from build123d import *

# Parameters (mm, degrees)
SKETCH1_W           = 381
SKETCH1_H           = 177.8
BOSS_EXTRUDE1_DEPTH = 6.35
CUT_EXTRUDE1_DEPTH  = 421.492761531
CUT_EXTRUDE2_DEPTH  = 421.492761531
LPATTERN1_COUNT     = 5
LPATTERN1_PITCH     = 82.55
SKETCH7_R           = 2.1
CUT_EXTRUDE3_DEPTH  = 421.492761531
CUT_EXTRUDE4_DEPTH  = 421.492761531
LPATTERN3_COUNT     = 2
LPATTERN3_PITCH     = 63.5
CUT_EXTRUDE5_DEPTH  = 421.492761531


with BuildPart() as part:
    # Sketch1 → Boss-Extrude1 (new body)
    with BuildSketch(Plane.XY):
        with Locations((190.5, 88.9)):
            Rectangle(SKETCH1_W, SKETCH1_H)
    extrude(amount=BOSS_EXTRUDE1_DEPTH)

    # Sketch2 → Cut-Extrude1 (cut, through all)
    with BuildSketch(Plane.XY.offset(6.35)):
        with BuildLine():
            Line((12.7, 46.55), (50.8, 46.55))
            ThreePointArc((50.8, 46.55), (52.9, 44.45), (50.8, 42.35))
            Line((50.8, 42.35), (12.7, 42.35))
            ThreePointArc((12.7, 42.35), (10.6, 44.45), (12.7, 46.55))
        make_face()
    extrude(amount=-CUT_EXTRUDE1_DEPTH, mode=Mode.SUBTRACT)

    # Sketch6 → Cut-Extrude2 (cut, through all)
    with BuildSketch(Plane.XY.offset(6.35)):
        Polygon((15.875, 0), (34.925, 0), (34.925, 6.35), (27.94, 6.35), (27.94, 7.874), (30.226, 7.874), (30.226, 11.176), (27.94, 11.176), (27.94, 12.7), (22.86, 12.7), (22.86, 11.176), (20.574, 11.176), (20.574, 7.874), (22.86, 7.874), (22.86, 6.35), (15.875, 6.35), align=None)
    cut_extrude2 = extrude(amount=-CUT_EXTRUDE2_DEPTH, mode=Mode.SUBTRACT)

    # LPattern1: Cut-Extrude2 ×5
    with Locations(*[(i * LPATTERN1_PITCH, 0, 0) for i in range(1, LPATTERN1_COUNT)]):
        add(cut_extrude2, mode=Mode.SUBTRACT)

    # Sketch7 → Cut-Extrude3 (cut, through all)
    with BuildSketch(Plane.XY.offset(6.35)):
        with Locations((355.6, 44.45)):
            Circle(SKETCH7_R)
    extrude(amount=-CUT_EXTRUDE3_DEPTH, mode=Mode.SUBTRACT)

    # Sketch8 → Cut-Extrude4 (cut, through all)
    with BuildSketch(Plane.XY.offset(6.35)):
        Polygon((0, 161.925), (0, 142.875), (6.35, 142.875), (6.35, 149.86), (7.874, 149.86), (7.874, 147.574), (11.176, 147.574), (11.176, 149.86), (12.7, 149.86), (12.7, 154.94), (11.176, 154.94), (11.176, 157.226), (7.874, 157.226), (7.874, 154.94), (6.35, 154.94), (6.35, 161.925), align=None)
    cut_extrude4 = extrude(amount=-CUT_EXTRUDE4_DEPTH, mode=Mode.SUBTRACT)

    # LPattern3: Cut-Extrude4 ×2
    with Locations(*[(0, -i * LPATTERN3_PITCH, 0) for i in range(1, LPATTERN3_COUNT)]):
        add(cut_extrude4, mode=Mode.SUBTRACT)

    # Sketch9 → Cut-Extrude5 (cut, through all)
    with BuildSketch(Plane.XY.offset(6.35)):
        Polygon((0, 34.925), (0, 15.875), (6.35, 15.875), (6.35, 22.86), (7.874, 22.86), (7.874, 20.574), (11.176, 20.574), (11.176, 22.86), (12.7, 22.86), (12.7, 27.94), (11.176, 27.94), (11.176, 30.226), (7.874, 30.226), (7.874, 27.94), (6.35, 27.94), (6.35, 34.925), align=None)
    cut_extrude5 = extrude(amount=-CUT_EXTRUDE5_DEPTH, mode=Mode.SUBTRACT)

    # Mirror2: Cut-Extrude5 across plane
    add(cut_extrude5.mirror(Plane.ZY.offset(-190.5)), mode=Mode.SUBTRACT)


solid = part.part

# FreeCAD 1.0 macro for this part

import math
import FreeCAD as App
import Part
import Sketcher

V = App.Vector
Q = App.Units.Quantity


def add_polygon(sketch, points):
    """Adds a closed chain of lines whose ends are joined by coincident constraints."""
    first, n = sketch.GeometryCount, len(points)
    for a, b in zip(points, points[1:] + points[:1]):
        sketch.addGeometry(Part.LineSegment(App.Vector(*a, 0), App.Vector(*b, 0)), False)
    for i in range(n):
        sketch.addConstraint(Sketcher.Constraint("Coincident", first + i, 2, first + (i + 1) % n, 1))

doc = App.newDocument("Part")
body = doc.addObject("PartDesign::Body", "Body")

# Sketch on XY plane
sketch1 = body.newObject("Sketcher::SketchObject", "Sketch")
sketch1.AttachmentSupport = (doc.getObject("XY_Plane"), [""])
sketch1.MapMode = "FlatFace"
add_polygon(sketch1, [(0, 178), (0, 0), (381, 0), (381, 178)])  # lines 0-3
sketch1.addConstraint([
    Sketcher.Constraint("Vertical", 0),
    Sketcher.Constraint("Horizontal", 1),
    Sketcher.Constraint("Vertical", 2),
    Sketcher.Constraint("Horizontal", 3),
    Sketcher.Constraint("Coincident", 0, 2, -1, 1),
    Sketcher.Constraint("DistanceX", 1, 1, 1, 2, Q("15 in")),
    Sketcher.Constraint("DistanceY", 0, 2, 0, 1, Q("7 in")),
])
pad1 = body.newObject("PartDesign::Pad", "Pad")
pad1.Profile = sketch1
pad1.Length = Q("0.25 in")

# Sketch on XY plane
sketch2 = body.newObject("Sketcher::SketchObject", "Sketch001")
sketch2.AttachmentSupport = (doc.getObject("XY_Plane"), [""])
sketch2.MapMode = "FlatFace"
sketch2.AttachmentOffset = App.Placement(V(0, 0, 0.25 * 25.4), App.Rotation())
sketch2.addGeometry([
    Part.LineSegment(V(50.8, 46.5, 0), V(12.7, 46.5, 0)),
    Part.ArcOfCircle(Part.Circle(V(12.7, 44.5, 0), V(0, 0, 1), 2.1), math.radians(90), math.radians(270)),
    Part.LineSegment(V(12.7, 42.4, 0), V(50.8, 42.4, 0)),
    Part.ArcOfCircle(Part.Circle(V(50.8, 44.5, 0), V(0, 0, 1), 2.1), math.radians(-90), math.radians(90)),
], False)
sketch2.addConstraint([
    Sketcher.Constraint("Tangent", 0, 2, 1, 1),
    Sketcher.Constraint("Tangent", 1, 2, 2, 1),
    Sketcher.Constraint("Tangent", 2, 2, 3, 1),
    Sketcher.Constraint("Tangent", 3, 2, 0, 1),
    Sketcher.Constraint("Horizontal", 0),
    Sketcher.Constraint("Horizontal", 2),
    Sketcher.Constraint("DistanceX", 0, 2, 0, 1, Q("1.5 in")),
    Sketcher.Constraint("DistanceX", -1, 1, 3, 3, Q("2 in")),
    Sketcher.Constraint("DistanceY", -1, 1, 1, 3, Q("1.75 in")),
    Sketcher.Constraint("Radius", 1, 2.1),
])
pocket1 = body.newObject("PartDesign::Pocket", "Pocket")
pocket1.Profile = sketch2
pocket1.Type = "ThroughAll"

# Sketch on XY plane
sketch3 = body.newObject("Sketcher::SketchObject", "Sketch002")
sketch3.AttachmentSupport = (doc.getObject("XY_Plane"), [""])
sketch3.MapMode = "FlatFace"
sketch3.AttachmentOffset = App.Placement(V(0, 0, 0.25 * 25.4), App.Rotation())
add_polygon(sketch3, [(15.9, 0), (34.9, 0), (34.9, 6.3), (27.9, 6.3), (27.9, 7.9), (30.2, 7.9), (30.2, 11.2), (27.9, 11.2), (27.9, 12.7), (22.9, 12.7), (22.9, 11.2), (20.6, 11.2), (20.6, 7.9), (22.9, 7.9), (22.9, 6.3), (15.9, 6.3)])  # lines 0-15
sketch3.addConstraint([
    Sketcher.Constraint("Horizontal", 0),
    Sketcher.Constraint("Vertical", 1),
    Sketcher.Constraint("Horizontal", 2),
    Sketcher.Constraint("Vertical", 3),
    Sketcher.Constraint("Horizontal", 4),
    Sketcher.Constraint("Vertical", 5),
    Sketcher.Constraint("Horizontal", 6),
    Sketcher.Constraint("Vertical", 7),
    Sketcher.Constraint("Horizontal", 8),
    Sketcher.Constraint("Vertical", 9),
    Sketcher.Constraint("Horizontal", 10),
    Sketcher.Constraint("Vertical", 11),
    Sketcher.Constraint("Horizontal", 12),
    Sketcher.Constraint("Vertical", 13),
    Sketcher.Constraint("Horizontal", 14),
    Sketcher.Constraint("Vertical", 15),
    Sketcher.Constraint("PointOnObject", 0, 2, -1),
    Sketcher.Constraint("Horizontal", 6, 2, 9, 2),
    Sketcher.Constraint("Horizontal", 4, 2, 11, 2),
    Sketcher.Constraint("Horizontal", 2, 2, 13, 2),
    Sketcher.Constraint("Vertical", 3, 2, 6, 2),
    Sketcher.Constraint("Vertical", 9, 2, 12, 2),
    Sketcher.Constraint("Equal", 6, 10),
    Sketcher.Constraint("Equal", 2, 14),
    Sketcher.Constraint("Equal", 3, 7),
    Sketcher.Constraint("DistanceX", 8, 2, 8, 1, Q("0.2 in")),
    Sketcher.Constraint("DistanceX", 0, 1, 0, 2, Q("0.75 in")),
    Sketcher.Constraint("DistanceX", 4, 1, 4, 2, Q("0.09 in")),
    Sketcher.Constraint("DistanceY", 1, 1, 1, 2, Q("0.25 in")),
    Sketcher.Constraint("DistanceY", 3, 1, 3, 2, Q("0.06 in")),
    Sketcher.Constraint("DistanceY", 5, 1, 5, 2, Q("0.13 in")),
    Sketcher.Constraint("DistanceX", -1, 1, 2, 2, Q("1.1 in")),
])
pocket2 = body.newObject("PartDesign::Pocket", "Pocket001")
pocket2.Profile = sketch3
pocket2.Type = "ThroughAll"
doc.recompute()

linearpattern = body.newObject("PartDesign::LinearPattern", "LinearPattern")
linearpattern.Originals = [pocket2]
linearpattern.Direction = (doc.getObject("X_Axis"), [""])
linearpattern.Mode = "offset"
linearpattern.Offset = Q("3.25 in")
linearpattern.Occurrences = 5
body.Tip = linearpattern

# Sketch on XY plane
sketch4 = body.newObject("Sketcher::SketchObject", "Sketch003")
sketch4.AttachmentSupport = (doc.getObject("XY_Plane"), [""])
sketch4.MapMode = "FlatFace"
sketch4.AttachmentOffset = App.Placement(V(0, 0, 0.25 * 25.4), App.Rotation())
sketch4.addGeometry(Part.Circle(V(355.6, 44.5, 0), V(0, 0, 1), 2.1), False)
sketch4.addConstraint([
    Sketcher.Constraint("DistanceX", -1, 1, 0, 3, Q("14 in")),
    Sketcher.Constraint("Diameter", 0, 4.2),
    Sketcher.Constraint("DistanceY", -1, 1, 0, 3, Q("1.75 in")),
])
pocket3 = body.newObject("PartDesign::Pocket", "Pocket002")
pocket3.Profile = sketch4
pocket3.Type = "ThroughAll"

# Sketch on XY plane
sketch5 = body.newObject("Sketcher::SketchObject", "Sketch004")
sketch5.AttachmentSupport = (doc.getObject("XY_Plane"), [""])
sketch5.MapMode = "FlatFace"
sketch5.AttachmentOffset = App.Placement(V(0, 0, 0.25 * 25.4), App.Rotation())
add_polygon(sketch5, [(0, 161.9), (0, 142.9), (6.3, 142.9), (6.3, 149.9), (7.9, 149.9), (7.9, 147.6), (11.2, 147.6), (11.2, 149.9), (12.7, 149.9), (12.7, 154.9), (11.2, 154.9), (11.2, 157.2), (7.9, 157.2), (7.9, 154.9), (6.3, 154.9), (6.3, 161.9)])  # lines 0-15
sketch5.addConstraint([
    Sketcher.Constraint("Vertical", 0),
    Sketcher.Constraint("Horizontal", 1),
    Sketcher.Constraint("Vertical", 2),
    Sketcher.Constraint("Horizontal", 3),
    Sketcher.Constraint("Vertical", 4),
    Sketcher.Constraint("Horizontal", 5),
    Sketcher.Constraint("Vertical", 6),
    Sketcher.Constraint("Horizontal", 7),
    Sketcher.Constraint("Vertical", 8),
    Sketcher.Constraint("Horizontal", 9),
    Sketcher.Constraint("Vertical", 10),
    Sketcher.Constraint("Horizontal", 11),
    Sketcher.Constraint("Vertical", 12),
    Sketcher.Constraint("Horizontal", 13),
    Sketcher.Constraint("Vertical", 14),
    Sketcher.Constraint("Horizontal", 15),
    Sketcher.Constraint("PointOnObject", 0, 2, -2),
    Sketcher.Constraint("Horizontal", 3, 2, 6, 2),
    Sketcher.Constraint("Horizontal", 9, 2, 12, 2),
    Sketcher.Constraint("Vertical", 6, 2, 9, 2),
    Sketcher.Constraint("Vertical", 4, 2, 11, 2),
    Sketcher.Constraint("Vertical", 2, 2, 13, 2),
    Sketcher.Constraint("Equal", 3, 7),
    Sketcher.Constraint("Equal", 6, 10),
    Sketcher.Constraint("Equal", 2, 14),
    Sketcher.Constraint("DistanceY", 8, 1, 8, 2, Q("0.2 in")),
    Sketcher.Constraint("DistanceX", 1, 1, 1, 2, Q("0.25 in")),
    Sketcher.Constraint("DistanceX", 3, 1, 3, 2, Q("0.06 in")),
    Sketcher.Constraint("DistanceX", 5, 1, 5, 2, Q("0.13 in")),
    Sketcher.Constraint("DistanceY", 0, 2, 0, 1, Q("0.75 in")),
    Sketcher.Constraint("DistanceY", 4, 2, 4, 1, Q("0.09 in")),
    Sketcher.Constraint("DistanceY", -1, 1, 2, 2, Q("5.9 in")),
])
pocket4 = body.newObject("PartDesign::Pocket", "Pocket003")
pocket4.Profile = sketch5
pocket4.Type = "ThroughAll"
doc.recompute()

linearpattern2 = body.newObject("PartDesign::LinearPattern", "LinearPattern001")
linearpattern2.Originals = [pocket4]
linearpattern2.Direction = (doc.getObject("Y_Axis"), [""])
linearpattern2.Mode = "offset"
linearpattern2.Offset = Q("2.5 in")
linearpattern2.Occurrences = 2
linearpattern2.Reversed = True
body.Tip = linearpattern2

# Sketch on XY plane
sketch6 = body.newObject("Sketcher::SketchObject", "Sketch005")
sketch6.AttachmentSupport = (doc.getObject("XY_Plane"), [""])
sketch6.MapMode = "FlatFace"
sketch6.AttachmentOffset = App.Placement(V(0, 0, 0.25 * 25.4), App.Rotation())
add_polygon(sketch6, [(0, 34.9), (0, 15.9), (6.3, 15.9), (6.3, 22.9), (7.9, 22.9), (7.9, 20.6), (11.2, 20.6), (11.2, 22.9), (12.7, 22.9), (12.7, 27.9), (11.2, 27.9), (11.2, 30.2), (7.9, 30.2), (7.9, 27.9), (6.3, 27.9), (6.3, 34.9)])  # lines 0-15
sketch6.addConstraint([
    Sketcher.Constraint("Vertical", 0),
    Sketcher.Constraint("Horizontal", 1),
    Sketcher.Constraint("Vertical", 2),
    Sketcher.Constraint("Horizontal", 3),
    Sketcher.Constraint("Vertical", 4),
    Sketcher.Constraint("Horizontal", 5),
    Sketcher.Constraint("Vertical", 6),
    Sketcher.Constraint("Horizontal", 7),
    Sketcher.Constraint("Vertical", 8),
    Sketcher.Constraint("Horizontal", 9),
    Sketcher.Constraint("Vertical", 10),
    Sketcher.Constraint("Horizontal", 11),
    Sketcher.Constraint("Vertical", 12),
    Sketcher.Constraint("Horizontal", 13),
    Sketcher.Constraint("Vertical", 14),
    Sketcher.Constraint("Horizontal", 15),
    Sketcher.Constraint("PointOnObject", 0, 2, -2),
    Sketcher.Constraint("Horizontal", 3, 2, 6, 2),
    Sketcher.Constraint("Horizontal", 9, 2, 12, 2),
    Sketcher.Constraint("Vertical", 6, 2, 9, 2),
    Sketcher.Constraint("Vertical", 4, 2, 11, 2),
    Sketcher.Constraint("Vertical", 2, 2, 13, 2),
    Sketcher.Constraint("Equal", 3, 7),
    Sketcher.Constraint("Equal", 6, 10),
    Sketcher.Constraint("Equal", 2, 14),
    Sketcher.Constraint("DistanceY", 8, 1, 8, 2, Q("0.2 in")),
    Sketcher.Constraint("DistanceX", 1, 1, 1, 2, Q("0.25 in")),
    Sketcher.Constraint("DistanceX", 3, 1, 3, 2, Q("0.06 in")),
    Sketcher.Constraint("DistanceX", 5, 1, 5, 2, Q("0.13 in")),
    Sketcher.Constraint("DistanceY", 0, 2, 0, 1, Q("0.75 in")),
    Sketcher.Constraint("DistanceY", 4, 2, 4, 1, Q("0.09 in")),
    Sketcher.Constraint("DistanceY", -1, 1, 2, 2, Q("0.9 in")),
])
pocket5 = body.newObject("PartDesign::Pocket", "Pocket004")
pocket5.Profile = sketch6
pocket5.Type = "ThroughAll"
doc.recompute()

datumplane = body.newObject("PartDesign::Plane", "DatumPlane")
datumplane.AttachmentSupport = (doc.getObject("YZ_Plane"), [""])
datumplane.MapMode = "FlatFace"
datumplane.AttachmentOffset = App.Placement(V(0, 0, 7.5 * 25.4), App.Rotation())
mirrored = body.newObject("PartDesign::Mirrored", "Mirrored")
mirrored.Originals = [pocket5]
mirrored.MirrorPlane = (datumplane, [""])
body.Tip = mirrored

doc.recompute()
